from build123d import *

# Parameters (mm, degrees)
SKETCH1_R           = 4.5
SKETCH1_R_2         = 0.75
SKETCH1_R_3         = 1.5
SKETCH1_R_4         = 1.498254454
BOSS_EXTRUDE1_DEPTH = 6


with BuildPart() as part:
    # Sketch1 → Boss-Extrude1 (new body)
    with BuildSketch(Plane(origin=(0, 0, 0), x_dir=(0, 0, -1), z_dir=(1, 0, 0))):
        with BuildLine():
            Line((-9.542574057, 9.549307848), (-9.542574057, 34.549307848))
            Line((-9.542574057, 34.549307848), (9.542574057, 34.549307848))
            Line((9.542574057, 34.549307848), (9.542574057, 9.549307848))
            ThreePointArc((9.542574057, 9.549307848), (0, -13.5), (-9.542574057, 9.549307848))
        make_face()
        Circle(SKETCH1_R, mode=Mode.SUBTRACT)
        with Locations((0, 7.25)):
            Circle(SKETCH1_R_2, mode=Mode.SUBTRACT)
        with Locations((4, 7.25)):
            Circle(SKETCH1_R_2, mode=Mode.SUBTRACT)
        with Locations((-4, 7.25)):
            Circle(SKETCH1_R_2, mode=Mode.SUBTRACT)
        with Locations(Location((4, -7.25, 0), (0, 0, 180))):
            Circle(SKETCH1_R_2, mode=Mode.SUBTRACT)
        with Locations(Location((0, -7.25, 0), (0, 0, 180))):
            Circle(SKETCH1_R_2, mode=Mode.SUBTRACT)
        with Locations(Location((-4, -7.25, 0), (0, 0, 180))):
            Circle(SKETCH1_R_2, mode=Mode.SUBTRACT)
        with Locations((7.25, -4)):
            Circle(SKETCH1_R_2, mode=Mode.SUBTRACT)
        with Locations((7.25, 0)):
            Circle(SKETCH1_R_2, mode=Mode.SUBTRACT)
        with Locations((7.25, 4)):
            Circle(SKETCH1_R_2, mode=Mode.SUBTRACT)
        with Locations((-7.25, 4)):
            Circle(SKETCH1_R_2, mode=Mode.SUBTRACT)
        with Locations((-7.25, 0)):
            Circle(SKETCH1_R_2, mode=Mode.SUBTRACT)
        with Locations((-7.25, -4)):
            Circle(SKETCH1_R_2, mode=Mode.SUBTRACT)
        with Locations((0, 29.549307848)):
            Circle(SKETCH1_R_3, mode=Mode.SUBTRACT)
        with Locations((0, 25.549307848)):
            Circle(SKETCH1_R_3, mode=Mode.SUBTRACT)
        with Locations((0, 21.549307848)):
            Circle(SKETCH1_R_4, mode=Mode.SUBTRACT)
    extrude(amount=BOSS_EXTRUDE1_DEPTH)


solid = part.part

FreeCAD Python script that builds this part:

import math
import FreeCAD as App
import Part
import Sketcher
from FreeCAD import Vector
Q = App.Units.Quantity

doc = App.newDocument("Part")
body = doc.addObject("PartDesign::Body", "Body")

sketch1 = doc.addObject("Sketcher::SketchObject", "Sketch")
body.addObject(sketch1)
sketch1.AttachmentSupport = (doc.YZ_Plane, [""])
sketch1.MapMode = "FlatFace"
sketch1.addGeometry([
    Part.LineSegment(Vector(34.5, 9.5, 0), Vector(9.5, 9.5, 0)),
    Part.ArcOfCircle(Part.Circle(Vector(0, 0, 0), Vector(0, 0, 1), 13.5), math.radians(45), math.radians(315)),
    Part.LineSegment(Vector(9.5, -9.5, 0), Vector(34.5, -9.5, 0)),
    Part.LineSegment(Vector(34.5, -9.5, 0), Vector(34.5, 9.5, 0)),
    Part.Circle(Vector(-4, -7.2, 0), Vector(0, 0, 1), 0.8),
    Part.Circle(Vector(-7.2, -4, 0), Vector(0, 0, 1), 0.8),
    Part.Circle(Vector(0, -7.2, 0), Vector(0, 0, 1), 0.8),
    Part.Circle(Vector(4, -7.2, 0), Vector(0, 0, 1), 0.8),
    Part.Circle(Vector(7.2, -4, 0), Vector(0, 0, 1), 0.8),
    Part.Circle(Vector(-7.2, 0, 0), Vector(0, 0, 1), 0.8),
    Part.Circle(Vector(0, 0, 0), Vector(0, 0, 1), 4.5),
    Part.Circle(Vector(-7.2, 4, 0), Vector(0, 0, 1), 0.8),
    Part.Circle(Vector(-4, 7.2, 0), Vector(0, 0, 1), 0.8),
    Part.Circle(Vector(0, 7.2, 0), Vector(0, 0, 1), 0.8),
    Part.Circle(Vector(7.2, 0, 0), Vector(0, 0, 1), 0.8),
    Part.Circle(Vector(4, 7.2, 0), Vector(0, 0, 1), 0.8),
    Part.Circle(Vector(7.2, 4, 0), Vector(0, 0, 1), 0.8),
    Part.Circle(Vector(21.5, 0, 0), Vector(0, 0, 1), 1.5),
    Part.Circle(Vector(25.5, 0, 0), Vector(0, 0, 1), 1.5),
    Part.Circle(Vector(29.5, 0, 0), Vector(0, 0, 1), 1.5),
], False)
sketch1.addConstraint([
    Sketcher.Constraint("Coincident", 0, 2, 1, 1),
    Sketcher.Constraint("Coincident", 1, 2, 2, 1),
    Sketcher.Constraint("Coincident", 2, 2, 3, 1),
    Sketcher.Constraint("Coincident", 3, 2, 0, 1),
    Sketcher.Constraint("Horizontal", 0),
    Sketcher.Constraint("Horizontal", 2),
    Sketcher.Constraint("Vertical", 3),
    Sketcher.Constraint("Coincident", 1, 3, -1, 1),
    Sketcher.Constraint("Coincident", 10, 3, -1, 1),
    Sketcher.Constraint("Equal", 4, 5),
    Sketcher.Constraint("Equal", 5, 6),
    Sketcher.Constraint("Equal", 6, 7),
    Sketcher.Constraint("Equal", 7, 8),
    Sketcher.Constraint("Equal", 8, 9),
    Sketcher.Constraint("Equal", 9, 11),
    Sketcher.Constraint("Equal", 11, 12),
    Sketcher.Constraint("Equal", 12, 13),
    Sketcher.Constraint("Equal", 13, 14),
    Sketcher.Constraint("Equal", 14, 15),
    Sketcher.Constraint("Equal", 15, 16),
    Sketcher.Constraint("Equal", 18, 19),
    Sketcher.Constraint("Symmetric", 8, 3, 11, 3, -1, 1),
    Sketcher.Constraint("Symmetric", 7, 3, 12, 3, -1, 1),
    Sketcher.Constraint("Symmetric", 6, 3, 13, 3, -1, 1),
    Sketcher.Constraint("Symmetric", 9, 3, 14, 3, -1, 1),
    Sketcher.Constraint("Symmetric", 4, 3, 15, 3, -1, 1),
    Sketcher.Constraint("Symmetric", 5, 3, 16, 3, -1, 1),
    Sketcher.Constraint("Symmetric", 4, 3, 7, 3, -2),
    Sketcher.Constraint("Symmetric", 5, 3, 8, 3, -2),
    Sketcher.Constraint("PointOnObject", 6, 3, -2),
    Sketcher.Constraint("PointOnObject", 9, 3, -1),
    Sketcher.Constraint("PointOnObject", 17, 3, -1),
    Sketcher.Constraint("PointOnObject", 18, 3, -1),
    Sketcher.Constraint("PointOnObject", 19, 3, -1),
    Sketcher.Constraint("Horizontal", 4, 3, 6, 3),
    Sketcher.Constraint("Vertical", 5, 3, 9, 3),
    Sketcher.Constraint("Vertical", 0, 2, 1, 2),
    Sketcher.Constraint("Diameter", 10, Q("9 mm")),
    Sketcher.Constraint("Diameter", 18, Q("3 mm")),
    Sketcher.Constraint("Diameter", 4, Q("1.5 mm")),
    Sketcher.Constraint("Radius", 1, Q("13.5 mm")),
    Sketcher.Constraint("DistanceX", 0, 2, 0, 1, Q("25 mm")),
    Sketcher.Constraint("DistanceX", 4, 3, -1, 1, Q("4 mm")),
    Sketcher.Constraint("DistanceY", 5, 3, -1, 1, Q("4 mm")),
    Sketcher.Constraint("DistanceX", 17, 3, 18, 3, Q("4 mm")),
    Sketcher.Constraint("DistanceX", 18, 3, 19, 3, Q("4 mm")),
    Sketcher.Constraint("DistanceX", 19, 3, 2, 2, Q("5 mm")),
    Sketcher.Constraint("DistanceX", 5, 3, 8, 3, Q("14.5 mm")),
    Sketcher.Constraint("Diameter", 17, Q("2.996509 mm")),
    Sketcher.Constraint("DistanceY", 4, 3, -1, 1, Q("7.25 mm")),
    Sketcher.Constraint("DistanceY", 3, 1, 3, 2, Q("19.085148 mm")),
])
pad1 = doc.addObject("PartDesign::Pad", "Pad")
body.addObject(pad1)
pad1.Profile = sketch1
pad1.Length = 6

doc.recompute()
